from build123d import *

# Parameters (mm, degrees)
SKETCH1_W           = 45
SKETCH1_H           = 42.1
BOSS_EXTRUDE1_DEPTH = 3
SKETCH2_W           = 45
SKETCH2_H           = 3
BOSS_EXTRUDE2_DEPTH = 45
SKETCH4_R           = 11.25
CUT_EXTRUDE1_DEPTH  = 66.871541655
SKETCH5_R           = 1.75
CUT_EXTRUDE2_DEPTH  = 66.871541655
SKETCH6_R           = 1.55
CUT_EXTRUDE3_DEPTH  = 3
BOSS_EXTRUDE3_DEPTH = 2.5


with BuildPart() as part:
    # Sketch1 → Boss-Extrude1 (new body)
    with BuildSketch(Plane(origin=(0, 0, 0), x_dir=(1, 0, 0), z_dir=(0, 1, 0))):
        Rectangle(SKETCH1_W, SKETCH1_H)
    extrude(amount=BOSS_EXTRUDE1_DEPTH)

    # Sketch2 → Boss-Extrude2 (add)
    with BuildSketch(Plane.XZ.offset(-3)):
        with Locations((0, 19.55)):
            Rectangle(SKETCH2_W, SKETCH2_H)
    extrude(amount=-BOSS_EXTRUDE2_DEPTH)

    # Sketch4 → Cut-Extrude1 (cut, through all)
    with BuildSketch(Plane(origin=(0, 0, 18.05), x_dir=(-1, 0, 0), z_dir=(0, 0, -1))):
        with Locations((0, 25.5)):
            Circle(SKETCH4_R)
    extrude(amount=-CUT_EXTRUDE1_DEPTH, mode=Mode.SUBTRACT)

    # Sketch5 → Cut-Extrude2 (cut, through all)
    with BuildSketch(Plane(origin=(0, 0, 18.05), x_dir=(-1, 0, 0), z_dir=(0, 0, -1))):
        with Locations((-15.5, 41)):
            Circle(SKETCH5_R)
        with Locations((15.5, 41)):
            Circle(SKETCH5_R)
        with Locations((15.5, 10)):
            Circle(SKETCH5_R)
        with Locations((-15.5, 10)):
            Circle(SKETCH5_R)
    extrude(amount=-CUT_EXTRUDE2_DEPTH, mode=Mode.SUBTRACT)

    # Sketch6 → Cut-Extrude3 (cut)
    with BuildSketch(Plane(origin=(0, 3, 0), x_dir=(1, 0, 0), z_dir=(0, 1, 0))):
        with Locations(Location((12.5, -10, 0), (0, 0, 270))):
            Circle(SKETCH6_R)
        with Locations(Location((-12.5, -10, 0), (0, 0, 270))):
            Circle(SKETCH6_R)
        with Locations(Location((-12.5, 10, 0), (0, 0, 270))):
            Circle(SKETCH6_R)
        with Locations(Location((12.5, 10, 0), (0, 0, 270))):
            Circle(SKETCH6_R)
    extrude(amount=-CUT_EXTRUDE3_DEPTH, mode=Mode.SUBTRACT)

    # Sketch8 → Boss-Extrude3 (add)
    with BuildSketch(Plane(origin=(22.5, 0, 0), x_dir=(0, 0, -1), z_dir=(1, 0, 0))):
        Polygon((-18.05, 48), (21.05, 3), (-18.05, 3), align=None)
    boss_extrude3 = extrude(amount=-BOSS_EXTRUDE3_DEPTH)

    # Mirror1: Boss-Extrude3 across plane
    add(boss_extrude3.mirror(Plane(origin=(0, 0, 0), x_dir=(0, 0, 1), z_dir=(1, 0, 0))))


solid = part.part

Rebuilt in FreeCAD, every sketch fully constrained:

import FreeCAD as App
import Part
import Sketcher

V = App.Vector
Q = App.Units.Quantity


def add_polygon(sketch, points):
    """Adds a closed chain of lines whose ends are joined by coincident constraints."""
    first, n = sketch.GeometryCount, len(points)
    for a, b in zip(points, points[1:] + points[:1]):
        sketch.addGeometry(Part.LineSegment(App.Vector(*a, 0), App.Vector(*b, 0)), False)
    for i in range(n):
        sketch.addConstraint(Sketcher.Constraint("Coincident", first + i, 2, first + (i + 1) % n, 1))

doc = App.newDocument("Part")
body = doc.addObject("PartDesign::Body", "Body")

# Sketch on XZ plane
sketch1 = doc.addObject("Sketcher::SketchObject", "Sketch")
body.addObject(sketch1)
sketch1.AttachmentSupport = (doc.XZ_Plane, [""])
sketch1.MapMode = "FlatFace"
add_polygon(sketch1, [(-22, -21), (-22, 21), (22, 21), (22, -21)])  # lines 0-3
sketch1.addConstraint([
    Sketcher.Constraint("Vertical", 0),
    Sketcher.Constraint("Horizontal", 1),
    Sketcher.Constraint("Vertical", 2),
    Sketcher.Constraint("Horizontal", 3),
    Sketcher.Constraint("Symmetric", 0, 2, 2, 2, -1, 1),
    Sketcher.Constraint("DistanceX", 1, 1, 1, 2, Q("45 mm")),
    Sketcher.Constraint("DistanceY", 0, 1, 0, 2, Q("42.1 mm")),
])
pad1 = doc.addObject("PartDesign::Pad", "Pad")
body.addObject(pad1)
pad1.Profile = sketch1
pad1.Length = 3
pad1.Reversed = True

# Sketch on XZ plane
sketch2 = doc.addObject("Sketcher::SketchObject", "Sketch001")
body.addObject(sketch2)
sketch2.AttachmentSupport = (doc.XZ_Plane, [""])
sketch2.MapMode = "FlatFace"
sketch2.AttachmentOffset = App.Placement(V(0, 0, -3), App.Rotation())
add_polygon(sketch2, [(-22.5, 21.1), (-22.5, 18.1), (22.5, 18.1), (22.5, 21.1)])  # lines 0-3
sketch2.addConstraint([
    Sketcher.Constraint("Vertical", 0),
    Sketcher.Constraint("Horizontal", 1),
    Sketcher.Constraint("Vertical", 2),
    Sketcher.Constraint("Horizontal", 3),
    Sketcher.Constraint("DistanceX", 1, 1, 1, 2, Q("45 mm")),
    Sketcher.Constraint("DistanceY", 0, 2, 0, 1, Q("3 mm")),
    Sketcher.Constraint("DistanceX", 0, 2, -1, 1, Q("22.5 mm")),
    Sketcher.Constraint("DistanceY", -1, 1, 0, 2, Q("18.05 mm")),
])
pad2 = doc.addObject("PartDesign::Pad", "Pad001")
body.addObject(pad2)
pad2.Profile = sketch2
pad2.Length = 45
pad2.Reversed = True

# Sketch on XY plane
sketch3 = doc.addObject("Sketcher::SketchObject", "Sketch002")
body.addObject(sketch3)
sketch3.AttachmentSupport = (doc.XY_Plane, [""])
sketch3.MapMode = "FlatFace"
sketch3.AttachmentOffset = App.Placement(V(0, 0, 18.05), App.Rotation())
sketch3.addGeometry(Part.Circle(V(0, 26, 0), V(0, 0, 1), 11), False)
sketch3.addConstraint([
    Sketcher.Constraint("PointOnObject", 0, 3, -2),
    Sketcher.Constraint("Diameter", 0, Q("22.5 mm")),
    Sketcher.Constraint("DistanceY", -1, 1, 0, 3, Q("25.5 mm")),
])
pocket1 = doc.addObject("PartDesign::Pocket", "Pocket")
body.addObject(pocket1)
pocket1.Profile = sketch3
pocket1.Type = "ThroughAll"
pocket1.Reversed = True

# Sketch on XY plane
sketch4 = doc.addObject("Sketcher::SketchObject", "Sketch003")
body.addObject(sketch4)
sketch4.AttachmentSupport = (doc.XY_Plane, [""])
sketch4.MapMode = "FlatFace"
sketch4.AttachmentOffset = App.Placement(V(0, 0, 18.05), App.Rotation())
sketch4.addGeometry([
    Part.Circle(V(15.5, 41, 0), V(0, 0, 1), 1.8),
    Part.Circle(V(-15.5, 41, 0), V(0, 0, 1), 1.8),
    Part.Circle(V(-15.5, 10, 0), V(0, 0, 1), 1.8),
    Part.Circle(V(15.5, 10, 0), V(0, 0, 1), 1.8),
], False)
sketch4.addConstraint([
    Sketcher.Constraint("Equal", 0, 1),
    Sketcher.Constraint("Equal", 1, 2),
    Sketcher.Constraint("Equal", 2, 3),
    Sketcher.Constraint("Symmetric", 0, 3, 1, 3, -2),
    Sketcher.Constraint("Symmetric", 2, 3, 3, 3, -2),
    Sketcher.Constraint("Vertical", 1, 3, 2, 3),
    Sketcher.Constraint("Diameter", 0, Q("3.5 mm")),
    Sketcher.Constraint("DistanceY", -1, 1, 0, 3, Q("41 mm")),
    Sketcher.Constraint("DistanceY", -1, 1, 2, 3, Q("10 mm")),
    Sketcher.Constraint("DistanceX", 1, 3, 0, 3, Q("31 mm")),
])
pocket2 = doc.addObject("PartDesign::Pocket", "Pocket001")
body.addObject(pocket2)
pocket2.Profile = sketch4
pocket2.Type = "ThroughAll"
pocket2.Reversed = True

# Sketch on XZ plane
sketch5 = doc.addObject("Sketcher::SketchObject", "Sketch004")
body.addObject(sketch5)
sketch5.AttachmentSupport = (doc.XZ_Plane, [""])
sketch5.MapMode = "FlatFace"
sketch5.AttachmentOffset = App.Placement(V(0, 0, -3), App.Rotation())
sketch5.addGeometry([
    Part.Circle(V(12.5, 10, 0), V(0, 0, 1), 1.6),
    Part.Circle(V(-12.5, 10, 0), V(0, 0, 1), 1.6),
    Part.Circle(V(-12.5, -10, 0), V(0, 0, 1), 1.6),
    Part.Circle(V(12.5, -10, 0), V(0, 0, 1), 1.6),
], False)
sketch5.addConstraint([
    Sketcher.Constraint("Equal", 0, 1),
    Sketcher.Constraint("Equal", 1, 2),
    Sketcher.Constraint("Equal", 2, 3),
    Sketcher.Constraint("Symmetric", 0, 3, 2, 3, -1, 1),
    Sketcher.Constraint("Symmetric", 1, 3, 3, 3, -1, 1),
    Sketcher.Constraint("Symmetric", 0, 3, 1, 3, -2),
    Sketcher.Constraint("Diameter", 0, Q("3.1 mm")),
    Sketcher.Constraint("DistanceY", -1, 1, 0, 3, Q("10 mm")),
    Sketcher.Constraint("DistanceX", 1, 3, 0, 3, Q("25 mm")),
])
pocket3 = doc.addObject("PartDesign::Pocket", "Pocket002")
body.addObject(pocket3)
pocket3.Profile = sketch5
pocket3.Length = 3
pocket3.Reversed = True

# Sketch on YZ plane
sketch6 = doc.addObject("Sketcher::SketchObject", "Sketch005")
body.addObject(sketch6)
sketch6.AttachmentSupport = (doc.YZ_Plane, [""])
sketch6.MapMode = "FlatFace"
sketch6.AttachmentOffset = App.Placement(V(0, 0, 22.5), App.Rotation())
add_polygon(sketch6, [(3, -21), (48, 18), (3, 18)])  # lines 0-2
sketch6.addConstraint([
    Sketcher.Constraint("Horizontal", 1),
    Sketcher.Constraint("Vertical", 2),
    Sketcher.Constraint("DistanceX", 1, 2, 1, 1, Q("45 mm")),
    Sketcher.Constraint("DistanceY", 2, 2, 2, 1, Q("39.1 mm")),
    Sketcher.Constraint("DistanceX", -1, 1, 0, 2, Q("48 mm")),
    Sketcher.Constraint("DistanceY", -1, 1, 0, 2, Q("18.05 mm")),
])
pad3 = doc.addObject("PartDesign::Pad", "Pad002")
body.addObject(pad3)
pad3.Profile = sketch6
pad3.Length = 2.5
pad3.Reversed = True
doc.recompute()

mirrored = doc.addObject("PartDesign::Mirrored", "Mirrored")
body.addObject(mirrored)
mirrored.Originals = [pad3]
mirrored.MirrorPlane = (doc.YZ_Plane, [""])
body.Tip = mirrored

doc.recompute()
